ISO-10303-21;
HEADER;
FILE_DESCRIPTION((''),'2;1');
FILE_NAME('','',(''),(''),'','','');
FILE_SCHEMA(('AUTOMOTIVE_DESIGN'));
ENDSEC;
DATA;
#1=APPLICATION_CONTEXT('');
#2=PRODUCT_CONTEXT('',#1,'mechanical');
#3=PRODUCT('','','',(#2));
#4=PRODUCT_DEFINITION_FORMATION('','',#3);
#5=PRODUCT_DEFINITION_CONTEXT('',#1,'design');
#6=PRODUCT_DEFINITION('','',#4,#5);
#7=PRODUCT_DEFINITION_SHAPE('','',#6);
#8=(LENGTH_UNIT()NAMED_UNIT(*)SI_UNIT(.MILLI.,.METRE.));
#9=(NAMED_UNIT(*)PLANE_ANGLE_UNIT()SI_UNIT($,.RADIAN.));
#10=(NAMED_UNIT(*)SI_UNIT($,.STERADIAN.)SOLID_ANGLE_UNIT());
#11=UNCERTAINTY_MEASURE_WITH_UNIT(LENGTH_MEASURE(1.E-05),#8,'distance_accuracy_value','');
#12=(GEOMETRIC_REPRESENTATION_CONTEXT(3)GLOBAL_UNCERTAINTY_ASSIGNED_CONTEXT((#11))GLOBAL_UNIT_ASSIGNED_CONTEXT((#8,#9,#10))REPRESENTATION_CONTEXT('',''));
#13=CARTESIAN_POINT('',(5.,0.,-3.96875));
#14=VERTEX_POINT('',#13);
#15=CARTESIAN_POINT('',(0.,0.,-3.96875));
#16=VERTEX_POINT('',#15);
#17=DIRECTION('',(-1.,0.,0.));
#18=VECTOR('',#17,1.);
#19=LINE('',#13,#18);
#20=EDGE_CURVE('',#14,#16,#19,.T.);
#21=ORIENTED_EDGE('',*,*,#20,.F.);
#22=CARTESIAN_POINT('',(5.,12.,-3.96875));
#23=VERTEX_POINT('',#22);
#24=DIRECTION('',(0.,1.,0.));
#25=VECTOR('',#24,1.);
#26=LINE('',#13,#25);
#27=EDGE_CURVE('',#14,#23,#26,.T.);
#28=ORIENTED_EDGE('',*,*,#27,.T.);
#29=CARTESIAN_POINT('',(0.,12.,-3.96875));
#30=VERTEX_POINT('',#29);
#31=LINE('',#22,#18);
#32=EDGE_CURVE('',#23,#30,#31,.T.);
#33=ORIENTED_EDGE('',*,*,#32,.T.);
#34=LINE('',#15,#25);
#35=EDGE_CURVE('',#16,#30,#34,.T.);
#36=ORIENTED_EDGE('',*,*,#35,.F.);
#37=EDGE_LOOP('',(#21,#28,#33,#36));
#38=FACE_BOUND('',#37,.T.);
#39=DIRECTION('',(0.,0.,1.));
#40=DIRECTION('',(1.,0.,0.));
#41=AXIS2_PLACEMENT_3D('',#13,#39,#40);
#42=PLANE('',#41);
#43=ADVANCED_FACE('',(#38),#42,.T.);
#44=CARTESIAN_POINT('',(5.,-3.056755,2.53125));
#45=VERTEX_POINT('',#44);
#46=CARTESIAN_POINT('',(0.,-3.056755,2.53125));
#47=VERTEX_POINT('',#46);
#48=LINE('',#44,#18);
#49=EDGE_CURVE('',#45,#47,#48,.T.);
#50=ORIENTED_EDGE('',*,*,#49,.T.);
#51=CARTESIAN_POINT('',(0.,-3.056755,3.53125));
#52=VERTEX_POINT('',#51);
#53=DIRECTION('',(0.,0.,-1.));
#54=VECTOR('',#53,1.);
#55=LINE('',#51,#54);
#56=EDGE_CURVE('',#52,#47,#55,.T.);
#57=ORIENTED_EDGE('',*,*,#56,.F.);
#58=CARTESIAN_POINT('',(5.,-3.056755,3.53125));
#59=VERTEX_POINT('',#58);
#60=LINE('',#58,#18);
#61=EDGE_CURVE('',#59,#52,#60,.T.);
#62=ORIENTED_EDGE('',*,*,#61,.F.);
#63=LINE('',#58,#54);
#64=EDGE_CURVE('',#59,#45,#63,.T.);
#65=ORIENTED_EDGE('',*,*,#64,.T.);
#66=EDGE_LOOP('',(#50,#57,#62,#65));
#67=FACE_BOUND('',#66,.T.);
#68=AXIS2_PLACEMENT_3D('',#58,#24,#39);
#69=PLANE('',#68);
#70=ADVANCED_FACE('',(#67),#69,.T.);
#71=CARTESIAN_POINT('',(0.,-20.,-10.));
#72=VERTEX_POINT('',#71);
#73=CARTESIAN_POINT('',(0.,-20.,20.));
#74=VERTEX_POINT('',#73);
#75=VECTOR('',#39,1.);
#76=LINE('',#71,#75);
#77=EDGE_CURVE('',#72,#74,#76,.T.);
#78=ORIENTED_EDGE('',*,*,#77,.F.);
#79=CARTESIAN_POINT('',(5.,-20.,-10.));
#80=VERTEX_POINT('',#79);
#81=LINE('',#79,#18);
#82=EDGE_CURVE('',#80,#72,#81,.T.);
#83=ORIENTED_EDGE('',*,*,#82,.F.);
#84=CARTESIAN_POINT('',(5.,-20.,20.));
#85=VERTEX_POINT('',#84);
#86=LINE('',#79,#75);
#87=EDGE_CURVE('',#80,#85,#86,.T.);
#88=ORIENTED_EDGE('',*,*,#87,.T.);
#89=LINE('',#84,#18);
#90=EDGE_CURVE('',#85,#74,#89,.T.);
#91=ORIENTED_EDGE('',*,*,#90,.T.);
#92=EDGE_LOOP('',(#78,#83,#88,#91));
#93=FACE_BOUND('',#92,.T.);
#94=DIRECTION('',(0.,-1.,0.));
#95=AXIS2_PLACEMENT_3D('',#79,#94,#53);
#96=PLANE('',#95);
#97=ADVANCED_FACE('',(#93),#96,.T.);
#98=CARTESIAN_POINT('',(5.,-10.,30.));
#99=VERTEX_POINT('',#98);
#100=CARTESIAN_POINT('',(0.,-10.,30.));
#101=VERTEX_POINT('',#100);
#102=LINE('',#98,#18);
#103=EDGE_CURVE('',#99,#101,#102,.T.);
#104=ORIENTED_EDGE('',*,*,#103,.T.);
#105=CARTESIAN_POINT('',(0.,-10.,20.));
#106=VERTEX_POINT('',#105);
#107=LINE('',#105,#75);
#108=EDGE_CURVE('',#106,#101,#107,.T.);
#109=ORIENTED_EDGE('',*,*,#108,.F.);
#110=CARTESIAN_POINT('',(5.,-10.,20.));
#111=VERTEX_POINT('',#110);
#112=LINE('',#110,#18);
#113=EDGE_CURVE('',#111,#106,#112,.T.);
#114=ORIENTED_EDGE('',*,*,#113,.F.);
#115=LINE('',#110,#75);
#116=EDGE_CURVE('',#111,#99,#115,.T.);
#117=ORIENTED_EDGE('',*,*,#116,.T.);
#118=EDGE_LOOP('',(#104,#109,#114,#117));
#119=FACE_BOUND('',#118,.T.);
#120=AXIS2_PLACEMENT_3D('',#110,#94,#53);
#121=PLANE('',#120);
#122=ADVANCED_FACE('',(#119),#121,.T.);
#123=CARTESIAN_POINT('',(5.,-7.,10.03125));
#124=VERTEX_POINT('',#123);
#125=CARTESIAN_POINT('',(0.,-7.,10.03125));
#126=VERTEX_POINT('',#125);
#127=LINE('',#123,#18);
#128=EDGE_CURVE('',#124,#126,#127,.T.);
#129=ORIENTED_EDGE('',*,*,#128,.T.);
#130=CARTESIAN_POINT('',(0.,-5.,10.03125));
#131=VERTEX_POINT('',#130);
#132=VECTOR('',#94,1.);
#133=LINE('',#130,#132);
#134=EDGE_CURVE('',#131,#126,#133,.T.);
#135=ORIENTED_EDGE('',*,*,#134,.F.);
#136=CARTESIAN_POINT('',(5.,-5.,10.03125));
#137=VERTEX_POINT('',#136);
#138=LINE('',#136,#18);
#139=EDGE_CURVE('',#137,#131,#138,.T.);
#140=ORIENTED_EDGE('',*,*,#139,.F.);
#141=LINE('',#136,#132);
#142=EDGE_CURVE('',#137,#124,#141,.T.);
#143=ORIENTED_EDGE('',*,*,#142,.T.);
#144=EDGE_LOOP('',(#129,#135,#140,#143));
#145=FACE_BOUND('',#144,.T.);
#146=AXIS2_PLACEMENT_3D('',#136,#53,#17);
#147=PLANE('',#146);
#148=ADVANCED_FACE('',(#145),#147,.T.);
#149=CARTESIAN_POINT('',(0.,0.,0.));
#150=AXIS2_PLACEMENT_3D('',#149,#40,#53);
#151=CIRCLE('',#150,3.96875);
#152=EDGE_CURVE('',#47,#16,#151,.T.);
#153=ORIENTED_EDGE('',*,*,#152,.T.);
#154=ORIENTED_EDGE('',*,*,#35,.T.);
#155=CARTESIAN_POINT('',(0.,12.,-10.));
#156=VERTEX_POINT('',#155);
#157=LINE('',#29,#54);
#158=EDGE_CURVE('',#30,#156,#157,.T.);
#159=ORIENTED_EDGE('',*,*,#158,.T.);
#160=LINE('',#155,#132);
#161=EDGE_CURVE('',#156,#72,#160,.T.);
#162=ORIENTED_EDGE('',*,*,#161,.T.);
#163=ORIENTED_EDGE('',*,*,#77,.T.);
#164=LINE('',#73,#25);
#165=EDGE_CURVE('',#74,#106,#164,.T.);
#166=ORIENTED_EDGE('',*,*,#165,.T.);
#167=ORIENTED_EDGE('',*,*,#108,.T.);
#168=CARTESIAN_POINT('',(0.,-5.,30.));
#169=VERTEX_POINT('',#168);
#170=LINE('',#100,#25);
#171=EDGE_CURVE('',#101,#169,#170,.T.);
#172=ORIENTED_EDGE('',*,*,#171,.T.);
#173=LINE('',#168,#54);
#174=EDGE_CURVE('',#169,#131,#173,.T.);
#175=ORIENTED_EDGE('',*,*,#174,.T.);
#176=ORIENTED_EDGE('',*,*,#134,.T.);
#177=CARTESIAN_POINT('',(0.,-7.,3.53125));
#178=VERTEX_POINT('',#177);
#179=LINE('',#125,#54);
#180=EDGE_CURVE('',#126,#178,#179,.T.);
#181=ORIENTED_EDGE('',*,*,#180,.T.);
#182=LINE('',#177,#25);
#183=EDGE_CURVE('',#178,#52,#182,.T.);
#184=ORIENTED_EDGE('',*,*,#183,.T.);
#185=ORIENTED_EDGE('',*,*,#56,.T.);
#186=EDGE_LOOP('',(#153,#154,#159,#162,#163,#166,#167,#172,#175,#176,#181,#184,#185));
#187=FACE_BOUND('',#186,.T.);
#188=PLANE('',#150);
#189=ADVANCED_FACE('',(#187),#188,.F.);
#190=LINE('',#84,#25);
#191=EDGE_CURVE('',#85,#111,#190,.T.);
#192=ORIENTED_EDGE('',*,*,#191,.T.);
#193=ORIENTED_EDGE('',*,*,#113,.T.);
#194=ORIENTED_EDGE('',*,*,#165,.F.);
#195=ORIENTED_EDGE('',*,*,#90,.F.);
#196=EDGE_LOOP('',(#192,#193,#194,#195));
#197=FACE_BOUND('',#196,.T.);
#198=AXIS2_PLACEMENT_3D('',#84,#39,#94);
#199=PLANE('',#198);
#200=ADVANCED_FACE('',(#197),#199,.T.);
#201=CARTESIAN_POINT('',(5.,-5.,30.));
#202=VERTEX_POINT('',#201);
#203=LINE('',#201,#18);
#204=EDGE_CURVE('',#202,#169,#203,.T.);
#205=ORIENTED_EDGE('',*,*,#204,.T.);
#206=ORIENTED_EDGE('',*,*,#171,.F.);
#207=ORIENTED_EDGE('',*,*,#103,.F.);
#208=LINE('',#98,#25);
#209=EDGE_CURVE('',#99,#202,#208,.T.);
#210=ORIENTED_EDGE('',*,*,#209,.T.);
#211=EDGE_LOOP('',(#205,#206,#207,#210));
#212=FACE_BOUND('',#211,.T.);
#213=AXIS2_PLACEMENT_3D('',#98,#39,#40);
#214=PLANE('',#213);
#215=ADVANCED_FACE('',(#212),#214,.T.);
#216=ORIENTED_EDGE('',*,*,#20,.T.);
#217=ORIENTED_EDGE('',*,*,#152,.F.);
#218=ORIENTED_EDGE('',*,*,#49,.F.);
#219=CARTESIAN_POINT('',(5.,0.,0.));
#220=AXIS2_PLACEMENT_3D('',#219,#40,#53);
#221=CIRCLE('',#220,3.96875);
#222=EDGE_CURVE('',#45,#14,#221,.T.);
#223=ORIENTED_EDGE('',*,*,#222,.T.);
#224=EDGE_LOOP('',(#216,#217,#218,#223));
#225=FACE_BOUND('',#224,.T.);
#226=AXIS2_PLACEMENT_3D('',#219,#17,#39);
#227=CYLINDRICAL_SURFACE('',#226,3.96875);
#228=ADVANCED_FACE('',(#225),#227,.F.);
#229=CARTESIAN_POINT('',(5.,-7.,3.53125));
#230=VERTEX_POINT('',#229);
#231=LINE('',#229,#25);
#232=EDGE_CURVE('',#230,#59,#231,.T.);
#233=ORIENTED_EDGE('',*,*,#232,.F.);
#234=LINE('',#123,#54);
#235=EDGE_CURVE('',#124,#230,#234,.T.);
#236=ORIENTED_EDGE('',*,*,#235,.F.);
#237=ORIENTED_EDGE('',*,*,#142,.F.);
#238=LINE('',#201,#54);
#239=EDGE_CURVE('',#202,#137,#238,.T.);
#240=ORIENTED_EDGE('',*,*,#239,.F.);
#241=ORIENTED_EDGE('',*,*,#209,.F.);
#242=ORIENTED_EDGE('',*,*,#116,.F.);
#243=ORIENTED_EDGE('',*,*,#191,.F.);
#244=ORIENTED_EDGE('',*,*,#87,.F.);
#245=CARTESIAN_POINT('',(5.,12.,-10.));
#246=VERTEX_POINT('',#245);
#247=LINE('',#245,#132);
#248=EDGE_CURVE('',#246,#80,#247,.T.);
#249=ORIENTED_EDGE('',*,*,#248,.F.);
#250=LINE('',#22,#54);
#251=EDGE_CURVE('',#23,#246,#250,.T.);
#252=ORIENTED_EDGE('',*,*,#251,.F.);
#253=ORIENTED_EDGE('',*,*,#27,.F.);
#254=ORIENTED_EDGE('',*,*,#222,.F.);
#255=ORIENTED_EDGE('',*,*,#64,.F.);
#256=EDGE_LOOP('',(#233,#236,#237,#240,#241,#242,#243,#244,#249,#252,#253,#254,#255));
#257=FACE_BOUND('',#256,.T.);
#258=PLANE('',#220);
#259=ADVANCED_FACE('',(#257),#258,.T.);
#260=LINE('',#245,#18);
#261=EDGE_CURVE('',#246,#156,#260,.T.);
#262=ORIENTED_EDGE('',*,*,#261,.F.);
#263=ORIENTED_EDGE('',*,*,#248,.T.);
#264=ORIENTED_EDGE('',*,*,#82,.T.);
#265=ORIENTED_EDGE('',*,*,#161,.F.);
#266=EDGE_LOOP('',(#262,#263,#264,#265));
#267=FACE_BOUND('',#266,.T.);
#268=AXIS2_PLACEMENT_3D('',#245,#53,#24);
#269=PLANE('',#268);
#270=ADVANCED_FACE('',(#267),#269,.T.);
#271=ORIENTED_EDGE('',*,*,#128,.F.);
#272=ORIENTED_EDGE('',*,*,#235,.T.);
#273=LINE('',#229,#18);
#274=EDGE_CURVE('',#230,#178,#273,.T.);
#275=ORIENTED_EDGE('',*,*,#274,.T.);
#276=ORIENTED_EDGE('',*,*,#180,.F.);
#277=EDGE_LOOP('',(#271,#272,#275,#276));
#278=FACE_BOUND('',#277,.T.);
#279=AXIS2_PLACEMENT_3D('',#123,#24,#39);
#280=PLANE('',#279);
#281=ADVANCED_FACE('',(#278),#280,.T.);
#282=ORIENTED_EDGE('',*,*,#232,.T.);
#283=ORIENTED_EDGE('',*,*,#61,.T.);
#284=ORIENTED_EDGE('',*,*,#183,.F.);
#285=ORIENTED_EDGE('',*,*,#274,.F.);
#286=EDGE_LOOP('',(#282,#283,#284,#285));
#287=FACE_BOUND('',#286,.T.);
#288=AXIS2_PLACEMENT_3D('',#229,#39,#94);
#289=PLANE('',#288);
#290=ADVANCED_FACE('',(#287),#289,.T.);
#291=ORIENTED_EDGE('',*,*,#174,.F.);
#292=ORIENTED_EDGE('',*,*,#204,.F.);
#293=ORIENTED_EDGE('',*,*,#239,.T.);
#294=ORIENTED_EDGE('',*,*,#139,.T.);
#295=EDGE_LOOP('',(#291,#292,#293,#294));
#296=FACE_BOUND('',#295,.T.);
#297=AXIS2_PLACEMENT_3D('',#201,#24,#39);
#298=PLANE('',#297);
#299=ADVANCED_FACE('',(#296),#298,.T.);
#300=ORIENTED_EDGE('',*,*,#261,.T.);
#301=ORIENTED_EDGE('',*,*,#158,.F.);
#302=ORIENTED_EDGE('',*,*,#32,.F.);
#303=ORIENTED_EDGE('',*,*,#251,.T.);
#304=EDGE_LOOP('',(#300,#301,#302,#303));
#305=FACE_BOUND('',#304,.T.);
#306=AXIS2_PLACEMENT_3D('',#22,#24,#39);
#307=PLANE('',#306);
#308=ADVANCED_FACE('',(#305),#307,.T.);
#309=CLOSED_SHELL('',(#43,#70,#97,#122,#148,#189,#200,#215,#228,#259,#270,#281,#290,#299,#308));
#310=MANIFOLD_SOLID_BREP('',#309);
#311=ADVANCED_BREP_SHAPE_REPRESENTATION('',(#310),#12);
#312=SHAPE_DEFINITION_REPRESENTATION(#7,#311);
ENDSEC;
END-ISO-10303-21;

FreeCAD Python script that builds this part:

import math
import FreeCAD as App
import Part
import Sketcher
from FreeCAD import Vector

doc = App.newDocument("Part")
params = doc.addObject("Spreadsheet::Sheet", "Params")
for row, (alias, value) in enumerate([
    ("sketch1_width", "12 mm"),
    ("sketch1_width2", "2 mm"),
    ("sketch1_width3", "5 mm"),
    ("sketch1_width4", "10 mm"),
    ("sketch1_width5", "32 mm"),
    ("pad1_length", "5 mm"),
], start=1):
    params.set(f"A{row}", alias)
    params.set(f"B{row}", "=" + value)
    params.setAlias(f"B{row}", alias)

body = doc.addObject("PartDesign::Body", "Body")

# Sketch on YZ plane
sketch1 = body.newObject("Sketcher::SketchObject", "Sketch")
sketch1.AttachmentSupport = (doc.getObject("YZ_Plane"), [""])
sketch1.MapMode = "FlatFace"
sketch1.addGeometry(Part.LineSegment(Vector(12, -4, 0), Vector(0, -4, 0)), False)
sketch1.addGeometry(Part.ArcOfCircle(Part.Circle(Vector(0, 0, 0), Vector(0, 0, 1), 4), math.radians(140), math.radians(270)), False)
sketch1.addGeometry(Part.LineSegment(Vector(-3.1, 2.5, 0), Vector(-3.1, 3.5, 0)), False)
sketch1.addGeometry(Part.LineSegment(Vector(-3.1, 3.5, 0), Vector(-7, 3.5, 0)), False)
sketch1.addGeometry(Part.LineSegment(Vector(-7, 3.5, 0), Vector(-7, 10, 0)), False)
sketch1.addGeometry(Part.LineSegment(Vector(-7, 10, 0), Vector(-5, 10, 0)), False)
sketch1.addGeometry(Part.LineSegment(Vector(-5, 10, 0), Vector(-5, 30, 0)), False)
sketch1.addGeometry(Part.LineSegment(Vector(-5, 30, 0), Vector(-10, 30, 0)), False)
sketch1.addGeometry(Part.LineSegment(Vector(-10, 30, 0), Vector(-10, 20, 0)), False)
sketch1.addGeometry(Part.LineSegment(Vector(-10, 20, 0), Vector(-20, 20, 0)), False)
sketch1.addGeometry(Part.LineSegment(Vector(-20, 20, 0), Vector(-20, -10, 0)), False)
sketch1.addGeometry(Part.LineSegment(Vector(-20, -10, 0), Vector(12, -10, 0)), False)
sketch1.addGeometry(Part.LineSegment(Vector(12, -10, 0), Vector(12, -4, 0)), False)
sketch1.addConstraint(Sketcher.Constraint("Tangent", 0, 2, 1, 2))
sketch1.addConstraint(Sketcher.Constraint("Coincident", 1, 1, 2, 1))
sketch1.addConstraint(Sketcher.Constraint("Coincident", 2, 2, 3, 1))
sketch1.addConstraint(Sketcher.Constraint("Coincident", 3, 2, 4, 1))
sketch1.addConstraint(Sketcher.Constraint("Coincident", 4, 2, 5, 1))
sketch1.addConstraint(Sketcher.Constraint("Coincident", 5, 2, 6, 1))
sketch1.addConstraint(Sketcher.Constraint("Coincident", 6, 2, 7, 1))
sketch1.addConstraint(Sketcher.Constraint("Coincident", 7, 2, 8, 1))
sketch1.addConstraint(Sketcher.Constraint("Coincident", 8, 2, 9, 1))
sketch1.addConstraint(Sketcher.Constraint("Coincident", 9, 2, 10, 1))
sketch1.addConstraint(Sketcher.Constraint("Coincident", 10, 2, 11, 1))
sketch1.addConstraint(Sketcher.Constraint("Coincident", 11, 2, 12, 1))
sketch1.addConstraint(Sketcher.Constraint("Coincident", 12, 2, 0, 1))
sketch1.addConstraint(Sketcher.Constraint("Horizontal", 0))
sketch1.addConstraint(Sketcher.Constraint("Vertical", 2))
sketch1.addConstraint(Sketcher.Constraint("Horizontal", 3))
sketch1.addConstraint(Sketcher.Constraint("Vertical", 4))
sketch1.addConstraint(Sketcher.Constraint("Horizontal", 5))
sketch1.addConstraint(Sketcher.Constraint("Vertical", 6))
sketch1.addConstraint(Sketcher.Constraint("Horizontal", 7))
sketch1.addConstraint(Sketcher.Constraint("Vertical", 8))
sketch1.addConstraint(Sketcher.Constraint("Horizontal", 9))
sketch1.addConstraint(Sketcher.Constraint("Vertical", 10))
sketch1.addConstraint(Sketcher.Constraint("Horizontal", 11))
sketch1.addConstraint(Sketcher.Constraint("Vertical", 12))
sketch1.addConstraint(Sketcher.Constraint("Coincident", 1, 3, -1, 1))
sketch1.addConstraint(Sketcher.Constraint("Equal", 9, 8))
sketch1.addConstraint(Sketcher.Constraint("DistanceX", 0, 2, 0, 1, 12.0))
sketch1.addConstraint(Sketcher.Constraint("DistanceX", 5, 1, 5, 2, 2.0))
sketch1.addConstraint(Sketcher.Constraint("DistanceX", 7, 2, 7, 1, 5.0))
sketch1.addConstraint(Sketcher.Constraint("DistanceX", 9, 2, 9, 1, 10.0))
sketch1.addConstraint(Sketcher.Constraint("DistanceX", 11, 1, 11, 2, 32.0))
sketch1.addConstraint(Sketcher.Constraint("DistanceY", 2, 1, 2, 2, 1.0))
sketch1.addConstraint(Sketcher.Constraint("DistanceY", 10, 2, 10, 1, 30.0))
sketch1.addConstraint(Sketcher.Constraint("DistanceY", 4, 1, 4, 2, 6.5))
sketch1.addConstraint(Sketcher.Constraint("DistanceY", -1, 1, 6, 2, 30.0))
sketch1.addConstraint(Sketcher.Constraint("DistanceY", 0, 2, 4, 2, 14.0))
sketch1.addConstraint(Sketcher.Constraint("Radius", 1, 3.96875))
sketch1.setExpression("Constraints[27]", "Params.sketch1_width")
sketch1.setExpression("Constraints[28]", "Params.sketch1_width2")
sketch1.setExpression("Constraints[29]", "Params.sketch1_width3")
sketch1.setExpression("Constraints[30]", "Params.sketch1_width4")
sketch1.setExpression("Constraints[31]", "Params.sketch1_width5")
pad1 = body.newObject("PartDesign::Pad", "Pad")
pad1.Profile = sketch1
pad1.setExpression("Length", "Params.pad1_length")

doc.recompute()
